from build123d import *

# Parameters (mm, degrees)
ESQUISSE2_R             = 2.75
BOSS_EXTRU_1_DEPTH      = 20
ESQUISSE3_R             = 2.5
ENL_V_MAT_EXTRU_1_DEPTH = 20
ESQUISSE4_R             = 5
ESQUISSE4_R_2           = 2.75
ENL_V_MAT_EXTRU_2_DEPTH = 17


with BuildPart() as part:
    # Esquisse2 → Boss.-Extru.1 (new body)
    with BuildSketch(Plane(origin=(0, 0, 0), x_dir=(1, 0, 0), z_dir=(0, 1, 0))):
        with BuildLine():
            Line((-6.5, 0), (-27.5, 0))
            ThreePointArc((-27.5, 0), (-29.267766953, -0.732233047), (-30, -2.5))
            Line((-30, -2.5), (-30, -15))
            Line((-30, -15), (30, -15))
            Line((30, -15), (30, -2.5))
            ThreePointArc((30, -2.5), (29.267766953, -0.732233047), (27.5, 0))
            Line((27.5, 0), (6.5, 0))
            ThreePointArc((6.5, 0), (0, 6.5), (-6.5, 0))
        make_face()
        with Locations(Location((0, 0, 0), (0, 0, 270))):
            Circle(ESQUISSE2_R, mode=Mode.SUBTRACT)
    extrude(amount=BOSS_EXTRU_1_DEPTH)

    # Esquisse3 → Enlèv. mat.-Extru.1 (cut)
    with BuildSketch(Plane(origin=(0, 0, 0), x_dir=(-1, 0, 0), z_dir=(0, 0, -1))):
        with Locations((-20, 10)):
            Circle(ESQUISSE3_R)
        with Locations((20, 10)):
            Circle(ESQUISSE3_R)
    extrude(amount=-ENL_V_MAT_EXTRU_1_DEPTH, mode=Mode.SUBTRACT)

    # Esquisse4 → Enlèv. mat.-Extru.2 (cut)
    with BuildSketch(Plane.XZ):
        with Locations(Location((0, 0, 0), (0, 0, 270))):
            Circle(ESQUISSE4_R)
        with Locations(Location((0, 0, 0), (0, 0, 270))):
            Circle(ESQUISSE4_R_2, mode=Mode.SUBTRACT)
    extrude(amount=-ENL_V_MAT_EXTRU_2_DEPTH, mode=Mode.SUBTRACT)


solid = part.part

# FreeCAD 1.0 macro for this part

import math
import FreeCAD as App
import Part
import Sketcher
from FreeCAD import Vector
Q = App.Units.Quantity

doc = App.newDocument("Part")
body = doc.addObject("PartDesign::Body", "Body")

# Sketch on XZ plane
sketch1 = body.newObject("Sketcher::SketchObject", "Sketch")
sketch1.AttachmentSupport = (doc.getObject("XZ_Plane"), [""])
sketch1.MapMode = "FlatFace"
sketch1.addGeometry([
    Part.LineSegment(Vector(-6.5, 0, 0), Vector(-27.5, 0, 0)),  # 0
    Part.ArcOfCircle(Part.Circle(Vector(-27.5, 2.5, 0), Vector(0, 0, 1), 2.5), math.radians(180), math.radians(270)),  # 1
    Part.LineSegment(Vector(-30, 2.5, 0), Vector(-30, 15, 0)),  # 2
    Part.LineSegment(Vector(-30, 15, 0), Vector(30, 15, 0)),  # 3
    Part.LineSegment(Vector(30, 15, 0), Vector(30, 2.5, 0)),  # 4
    Part.ArcOfCircle(Part.Circle(Vector(27.5, 2.5, 0), Vector(0, 0, 1), 2.5), math.radians(-90), math.radians(0)),  # 5
    Part.LineSegment(Vector(27.5, 0, 0), Vector(6.5, 0, 0)),  # 6
    Part.ArcOfCircle(Part.Circle(Vector(0, 0, 0), Vector(0, 0, 1), 6.5), math.radians(180), math.radians(360)),  # 7
    Part.Circle(Vector(0, 0, 0), Vector(0, 0, 1), 2.8),  # 8
], False)
sketch1.addConstraint([
    Sketcher.Constraint("Tangent", 0, 2, 1, 2),
    Sketcher.Constraint("Tangent", 1, 1, 2, 1),
    Sketcher.Constraint("Coincident", 2, 2, 3, 1),
    Sketcher.Constraint("Coincident", 3, 2, 4, 1),
    Sketcher.Constraint("Tangent", 4, 2, 5, 2),
    Sketcher.Constraint("Tangent", 5, 1, 6, 1),
    Sketcher.Constraint("Coincident", 6, 2, 7, 2),
    Sketcher.Constraint("Coincident", 7, 1, 0, 1),
    Sketcher.Constraint("Horizontal", 0),
    Sketcher.Constraint("Vertical", 2),
    Sketcher.Constraint("Horizontal", 3),
    Sketcher.Constraint("Vertical", 4),
    Sketcher.Constraint("Horizontal", 6),
    Sketcher.Constraint("Coincident", 7, 3, -1, 1),
    Sketcher.Constraint("Coincident", 8, 3, -1, 1),
    Sketcher.Constraint("Equal", 1, 5),
    Sketcher.Constraint("Symmetric", 0, 2, 5, 1, -1, 1),
    Sketcher.Constraint("PointOnObject", 0, 2, -1),
    Sketcher.Constraint("Diameter", 8, Q("5.5 mm")),
    Sketcher.Constraint("Radius", 1, Q("2.5 mm")),
    Sketcher.Constraint("Radius", 7, Q("6.5 mm")),
    Sketcher.Constraint("DistanceX", 0, 2, 0, 1, Q("21 mm")),
    Sketcher.Constraint("DistanceY", 2, 1, 2, 2, Q("12.5 mm")),
])
pad1 = body.newObject("PartDesign::Pad", "Pad")
pad1.Profile = sketch1
pad1.Length = 20
pad1.Reversed = True

# Sketch on XY plane
sketch2 = body.newObject("Sketcher::SketchObject", "Sketch001")
sketch2.AttachmentSupport = (doc.getObject("XY_Plane"), [""])
sketch2.MapMode = "FlatFace"
sketch2.addGeometry([
    Part.Circle(Vector(20, 10, 0), Vector(0, 0, 1), 2.5),
    Part.Circle(Vector(-20, 10, 0), Vector(0, 0, 1), 2.5),
], False)
sketch2.addConstraint([
    Sketcher.Constraint("Equal", 0, 1),
    Sketcher.Constraint("Symmetric", 0, 3, 1, 3, -2),
    Sketcher.Constraint("Diameter", 0, Q("5 mm")),
    Sketcher.Constraint("DistanceX", -1, 1, 0, 3, Q("20 mm")),
    Sketcher.Constraint("DistanceY", -1, 1, 0, 3, Q("10 mm")),
])
pocket1 = body.newObject("PartDesign::Pocket", "Pocket")
pocket1.Profile = sketch2
pocket1.Length = 20
pocket1.Reversed = True

# Sketch on XZ plane
sketch3 = body.newObject("Sketcher::SketchObject", "Sketch002")
sketch3.AttachmentSupport = (doc.getObject("XZ_Plane"), [""])
sketch3.MapMode = "FlatFace"
sketch3.addGeometry([
    Part.Circle(Vector(0, 0, 0), Vector(0, 0, 1), 5),
    Part.Circle(Vector(0, 0, 0), Vector(0, 0, 1), 2.8),
], False)
sketch3.addConstraint([
    Sketcher.Constraint("Coincident", 0, 3, -1, 1),
    Sketcher.Constraint("Coincident", 1, 3, -1, 1),
    Sketcher.Constraint("Diameter", 0, Q("10 mm")),
    Sketcher.Constraint("Diameter", 1, Q("5.5 mm")),
])
pocket2 = body.newObject("PartDesign::Pocket", "Pocket001")
pocket2.Profile = sketch3
pocket2.Length = 17

doc.recompute()
